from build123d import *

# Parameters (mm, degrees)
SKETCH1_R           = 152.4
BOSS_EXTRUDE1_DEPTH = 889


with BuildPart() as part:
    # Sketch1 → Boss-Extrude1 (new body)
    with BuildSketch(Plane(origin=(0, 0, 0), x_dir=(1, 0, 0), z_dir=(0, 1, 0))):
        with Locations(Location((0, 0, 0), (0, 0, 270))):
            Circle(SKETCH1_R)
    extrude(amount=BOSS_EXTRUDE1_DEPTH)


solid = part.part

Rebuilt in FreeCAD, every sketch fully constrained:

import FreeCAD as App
import Part
import Sketcher
from FreeCAD import Vector
Q = App.Units.Quantity

doc = App.newDocument("Part")
body = doc.addObject("PartDesign::Body", "Body")

# Sketch on XZ plane
sketch1 = doc.addObject("Sketcher::SketchObject", "Sketch")
body.addObject(sketch1)
sketch1.AttachmentSupport = (doc.XZ_Plane, [""])
sketch1.MapMode = "FlatFace"
sketch1.addGeometry(Part.Circle(Vector(0, 0, 0), Vector(0, 0, 1), 152), False)
sketch1.addConstraint(Sketcher.Constraint("Coincident", 0, 3, -1, 1))
sketch1.addConstraint(Sketcher.Constraint("Diameter", 0, Q("12 in")))
pad1 = doc.addObject("PartDesign::Pad", "Pad")
body.addObject(pad1)
pad1.Profile = sketch1
pad1.Length = Q("35 in")
pad1.Reversed = True

doc.recompute()
